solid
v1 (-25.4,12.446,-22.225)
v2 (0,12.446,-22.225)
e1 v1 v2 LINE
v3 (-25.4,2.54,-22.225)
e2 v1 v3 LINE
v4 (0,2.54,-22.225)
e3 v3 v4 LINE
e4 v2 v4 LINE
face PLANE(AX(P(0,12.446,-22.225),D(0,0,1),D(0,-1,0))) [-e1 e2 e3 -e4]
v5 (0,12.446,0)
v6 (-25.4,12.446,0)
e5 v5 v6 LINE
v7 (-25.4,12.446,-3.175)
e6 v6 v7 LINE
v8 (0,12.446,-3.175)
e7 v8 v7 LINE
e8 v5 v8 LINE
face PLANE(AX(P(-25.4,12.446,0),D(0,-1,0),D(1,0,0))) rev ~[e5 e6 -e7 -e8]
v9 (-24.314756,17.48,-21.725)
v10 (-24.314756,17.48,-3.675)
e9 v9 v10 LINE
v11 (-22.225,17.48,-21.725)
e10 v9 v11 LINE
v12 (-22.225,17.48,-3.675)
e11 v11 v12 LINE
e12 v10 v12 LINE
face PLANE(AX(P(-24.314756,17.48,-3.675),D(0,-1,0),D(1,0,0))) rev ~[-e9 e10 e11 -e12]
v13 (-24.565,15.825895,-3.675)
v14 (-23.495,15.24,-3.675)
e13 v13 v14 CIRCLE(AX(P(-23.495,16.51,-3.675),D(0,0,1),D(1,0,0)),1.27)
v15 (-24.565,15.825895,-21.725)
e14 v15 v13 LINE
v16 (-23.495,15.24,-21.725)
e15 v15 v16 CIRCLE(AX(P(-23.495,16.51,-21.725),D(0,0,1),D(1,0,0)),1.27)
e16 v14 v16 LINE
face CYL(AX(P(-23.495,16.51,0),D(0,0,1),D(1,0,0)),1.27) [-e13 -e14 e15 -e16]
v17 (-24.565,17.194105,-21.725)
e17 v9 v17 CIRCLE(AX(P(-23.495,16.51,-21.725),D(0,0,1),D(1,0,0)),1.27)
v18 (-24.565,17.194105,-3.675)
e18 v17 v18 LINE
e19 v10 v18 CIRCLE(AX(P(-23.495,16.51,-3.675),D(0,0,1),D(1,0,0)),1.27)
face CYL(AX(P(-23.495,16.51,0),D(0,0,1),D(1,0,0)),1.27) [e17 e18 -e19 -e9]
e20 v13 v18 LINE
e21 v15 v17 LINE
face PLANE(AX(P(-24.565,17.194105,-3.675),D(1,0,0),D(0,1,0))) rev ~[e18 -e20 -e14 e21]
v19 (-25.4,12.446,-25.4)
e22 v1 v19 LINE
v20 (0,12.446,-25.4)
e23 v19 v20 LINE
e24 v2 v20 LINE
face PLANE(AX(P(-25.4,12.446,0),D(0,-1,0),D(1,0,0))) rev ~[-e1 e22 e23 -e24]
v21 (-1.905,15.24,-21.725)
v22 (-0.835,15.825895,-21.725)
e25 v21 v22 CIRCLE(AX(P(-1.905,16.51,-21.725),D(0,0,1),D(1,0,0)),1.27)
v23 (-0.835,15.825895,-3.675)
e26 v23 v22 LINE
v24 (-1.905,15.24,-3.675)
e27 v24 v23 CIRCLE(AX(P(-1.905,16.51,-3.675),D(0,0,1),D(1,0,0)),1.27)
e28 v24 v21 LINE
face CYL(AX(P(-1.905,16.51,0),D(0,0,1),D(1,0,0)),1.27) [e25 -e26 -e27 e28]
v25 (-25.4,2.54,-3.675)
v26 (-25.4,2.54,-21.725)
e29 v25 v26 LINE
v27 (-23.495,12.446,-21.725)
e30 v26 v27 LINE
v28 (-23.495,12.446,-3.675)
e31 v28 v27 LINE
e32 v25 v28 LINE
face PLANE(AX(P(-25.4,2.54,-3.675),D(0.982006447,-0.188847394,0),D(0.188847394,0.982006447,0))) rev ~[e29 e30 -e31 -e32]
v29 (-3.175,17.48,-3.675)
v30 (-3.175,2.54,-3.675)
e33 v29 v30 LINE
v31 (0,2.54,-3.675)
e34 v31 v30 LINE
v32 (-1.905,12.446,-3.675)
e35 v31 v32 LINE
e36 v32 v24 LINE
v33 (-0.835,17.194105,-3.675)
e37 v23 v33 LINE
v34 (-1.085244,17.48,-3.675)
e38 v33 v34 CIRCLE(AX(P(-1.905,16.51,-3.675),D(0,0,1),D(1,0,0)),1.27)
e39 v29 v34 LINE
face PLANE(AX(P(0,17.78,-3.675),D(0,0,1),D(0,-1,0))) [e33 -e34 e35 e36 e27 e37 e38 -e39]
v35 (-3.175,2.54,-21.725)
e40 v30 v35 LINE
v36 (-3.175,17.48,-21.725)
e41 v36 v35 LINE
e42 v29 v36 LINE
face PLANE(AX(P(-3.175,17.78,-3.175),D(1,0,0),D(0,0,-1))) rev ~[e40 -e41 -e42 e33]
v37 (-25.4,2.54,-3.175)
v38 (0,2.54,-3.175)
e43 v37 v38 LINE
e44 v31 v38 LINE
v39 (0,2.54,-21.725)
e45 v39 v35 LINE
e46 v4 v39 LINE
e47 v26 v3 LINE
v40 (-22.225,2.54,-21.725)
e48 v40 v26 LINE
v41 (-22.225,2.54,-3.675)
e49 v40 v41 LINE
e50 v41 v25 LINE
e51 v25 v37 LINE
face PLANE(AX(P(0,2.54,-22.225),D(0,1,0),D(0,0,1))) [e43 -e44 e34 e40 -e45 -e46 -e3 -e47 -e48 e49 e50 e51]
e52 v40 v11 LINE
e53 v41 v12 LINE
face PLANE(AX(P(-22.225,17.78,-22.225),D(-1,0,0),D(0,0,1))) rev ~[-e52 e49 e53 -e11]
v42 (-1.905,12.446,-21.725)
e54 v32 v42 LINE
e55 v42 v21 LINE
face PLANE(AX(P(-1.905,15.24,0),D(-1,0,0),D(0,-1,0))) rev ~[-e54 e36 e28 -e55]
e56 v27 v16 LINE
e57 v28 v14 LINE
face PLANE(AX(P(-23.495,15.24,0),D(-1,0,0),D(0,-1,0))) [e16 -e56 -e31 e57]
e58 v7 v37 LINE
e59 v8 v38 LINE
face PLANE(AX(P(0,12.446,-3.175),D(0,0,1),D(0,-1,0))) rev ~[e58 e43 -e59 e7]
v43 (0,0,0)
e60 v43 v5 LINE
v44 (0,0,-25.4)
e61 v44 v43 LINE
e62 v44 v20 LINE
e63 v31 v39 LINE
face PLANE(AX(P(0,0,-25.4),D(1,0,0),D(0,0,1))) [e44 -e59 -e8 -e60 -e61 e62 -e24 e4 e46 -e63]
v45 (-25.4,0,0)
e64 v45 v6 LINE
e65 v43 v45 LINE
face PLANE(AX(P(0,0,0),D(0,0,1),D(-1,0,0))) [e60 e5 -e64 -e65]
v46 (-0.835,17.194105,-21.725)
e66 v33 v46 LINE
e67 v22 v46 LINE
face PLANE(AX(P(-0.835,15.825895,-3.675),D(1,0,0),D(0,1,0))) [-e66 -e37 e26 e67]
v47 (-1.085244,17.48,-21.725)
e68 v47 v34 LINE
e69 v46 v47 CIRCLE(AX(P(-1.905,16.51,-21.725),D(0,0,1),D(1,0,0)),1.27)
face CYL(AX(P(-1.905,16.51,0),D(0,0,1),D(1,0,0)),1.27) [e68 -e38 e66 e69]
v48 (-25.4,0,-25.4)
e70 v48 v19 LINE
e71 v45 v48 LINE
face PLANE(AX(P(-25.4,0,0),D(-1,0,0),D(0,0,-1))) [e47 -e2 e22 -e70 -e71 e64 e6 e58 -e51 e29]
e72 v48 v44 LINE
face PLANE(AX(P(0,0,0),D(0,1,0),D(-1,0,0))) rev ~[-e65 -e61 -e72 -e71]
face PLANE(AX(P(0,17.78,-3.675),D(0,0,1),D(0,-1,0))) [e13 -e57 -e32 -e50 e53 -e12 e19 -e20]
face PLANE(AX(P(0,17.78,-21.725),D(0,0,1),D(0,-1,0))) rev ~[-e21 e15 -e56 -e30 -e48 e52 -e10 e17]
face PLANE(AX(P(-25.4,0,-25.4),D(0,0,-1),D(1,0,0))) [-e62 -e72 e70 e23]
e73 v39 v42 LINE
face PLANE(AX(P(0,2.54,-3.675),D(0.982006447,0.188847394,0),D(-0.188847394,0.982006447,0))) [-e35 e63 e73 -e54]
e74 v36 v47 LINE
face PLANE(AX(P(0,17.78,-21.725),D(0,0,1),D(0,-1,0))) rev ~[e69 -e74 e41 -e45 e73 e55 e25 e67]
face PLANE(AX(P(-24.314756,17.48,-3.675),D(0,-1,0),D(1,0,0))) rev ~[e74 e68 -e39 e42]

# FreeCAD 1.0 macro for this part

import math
import FreeCAD as App
import Part
import Sketcher

V = App.Vector
Q = App.Units.Quantity


def add_polygon(sketch, points):
    """Adds a closed chain of lines whose ends are joined by coincident constraints."""
    first, n = sketch.GeometryCount, len(points)
    for a, b in zip(points, points[1:] + points[:1]):
        sketch.addGeometry(Part.LineSegment(App.Vector(*a, 0), App.Vector(*b, 0)), False)
    for i in range(n):
        sketch.addConstraint(Sketcher.Constraint("Coincident", first + i, 2, first + (i + 1) % n, 1))

doc = App.newDocument("Part")
body = doc.addObject("PartDesign::Body", "Body")

sketch1 = body.newObject("Sketcher::SketchObject", "Sketch")
sketch1.AttachmentSupport = (doc.getObject("XZ_Plane"), [""])
sketch1.MapMode = "FlatFace"
add_polygon(sketch1, [(-25.4, 0), (0, 0), (0, -25.4), (-25.4, -25.4)])
sketch1.addConstraint(Sketcher.Constraint("Horizontal", 0))
sketch1.addConstraint(Sketcher.Constraint("Vertical", 1))
sketch1.addConstraint(Sketcher.Constraint("Horizontal", 2))
sketch1.addConstraint(Sketcher.Constraint("Vertical", 3))
sketch1.addConstraint(Sketcher.Constraint("Coincident", 0, 2, -1, 1))
sketch1.addConstraint(Sketcher.Constraint("Equal", 2, 1))
sketch1.addConstraint(Sketcher.Constraint("DistanceX", 0, 1, 0, 2, Q("1 in")))
pad1 = body.newObject("PartDesign::Pad", "Pad")
pad1.Profile = sketch1
pad1.Length = Q("0.7 in")
pad1.Reversed = True

sketch2 = body.newObject("Sketcher::SketchObject", "Sketch001")
sketch2.AttachmentSupport = (doc.getObject("XZ_Plane"), [""])
sketch2.MapMode = "FlatFace"
sketch2.AttachmentOffset = App.Placement(V(0, 0, -0.7 * 25.4), App.Rotation())
add_polygon(sketch2, [(-22.225, -22.225), (-22.225, -3.175), (-3.175, -3.175), (-3.175, -22.225)])
sketch2.addConstraint(Sketcher.Constraint("Vertical", 0))
sketch2.addConstraint(Sketcher.Constraint("Horizontal", 1))
sketch2.addConstraint(Sketcher.Constraint("Vertical", 2))
sketch2.addConstraint(Sketcher.Constraint("Horizontal", 3))
sketch2.addConstraint(Sketcher.Constraint("Equal", 3, 0))
sketch2.addConstraint(Sketcher.Constraint("DistanceY", 0, 2, -1, 1, Q("0.125 in")))
sketch2.addConstraint(Sketcher.Constraint("DistanceX", 1, 2, -1, 1, Q("0.125 in")))
sketch2.addConstraint(Sketcher.Constraint("DistanceX", 1, 1, 1, 2, Q("0.75 in")))
pocket1 = body.newObject("PartDesign::Pocket", "Pocket")
pocket1.Profile = sketch2
pocket1.Length = Q("0.6 in")
pocket1.Reversed = True

sketch3 = body.newObject("Sketcher::SketchObject", "Sketch002")
sketch3.AttachmentSupport = (doc.getObject("XY_Plane"), [""])
sketch3.MapMode = "FlatFace"
sketch3.addGeometry(Part.ArcOfCircle(Part.Circle(V(-23.495, 16.51, 0), V(0, 0, 1), 1.27), math.radians(90), math.radians(270)), False)
sketch3.addGeometry(Part.LineSegment(V(-23.495, 17.78, 0), V(-25.4, 17.78, 0)), False)
sketch3.addGeometry(Part.LineSegment(V(-25.4, 17.78, 0), V(-25.4, 12.446, 0)), False)
sketch3.addGeometry(Part.LineSegment(V(-25.4, 12.446, 0), V(-23.495, 12.446, 0)), False)
sketch3.addGeometry(Part.LineSegment(V(-23.495, 12.446, 0), V(-23.495, 15.24, 0)), False)
sketch3.addGeometry(Part.LineSegment(V(0, 17.78, 0), V(-1.905, 17.78, 0)), False)
sketch3.addGeometry(Part.ArcOfCircle(Part.Circle(V(-1.905, 16.51, 0), V(0, 0, 1), 1.27), math.radians(-90), math.radians(90)), False)
sketch3.addGeometry(Part.LineSegment(V(-1.905, 15.24, 0), V(-1.905, 12.446, 0)), False)
sketch3.addGeometry(Part.LineSegment(V(-1.905, 12.446, 0), V(0, 12.446, 0)), False)
sketch3.addGeometry(Part.LineSegment(V(0, 12.446, 0), V(0, 17.78, 0)), False)
sketch3.addConstraint(Sketcher.Constraint("Tangent", 0, 1, 1, 1))
sketch3.addConstraint(Sketcher.Constraint("Coincident", 1, 2, 2, 1))
sketch3.addConstraint(Sketcher.Constraint("Coincident", 2, 2, 3, 1))
sketch3.addConstraint(Sketcher.Constraint("Coincident", 3, 2, 4, 1))
sketch3.addConstraint(Sketcher.Constraint("Coincident", 4, 2, 0, 2))
sketch3.addConstraint(Sketcher.Constraint("Tangent", 5, 2, 6, 2))
sketch3.addConstraint(Sketcher.Constraint("Coincident", 6, 1, 7, 1))
sketch3.addConstraint(Sketcher.Constraint("Coincident", 7, 2, 8, 1))
sketch3.addConstraint(Sketcher.Constraint("Coincident", 8, 2, 9, 1))
sketch3.addConstraint(Sketcher.Constraint("Coincident", 9, 2, 5, 1))
sketch3.addConstraint(Sketcher.Constraint("Horizontal", 1))
sketch3.addConstraint(Sketcher.Constraint("Vertical", 2))
sketch3.addConstraint(Sketcher.Constraint("Horizontal", 3))
sketch3.addConstraint(Sketcher.Constraint("Vertical", 4))
sketch3.addConstraint(Sketcher.Constraint("Horizontal", 5))
sketch3.addConstraint(Sketcher.Constraint("Vertical", 7))
sketch3.addConstraint(Sketcher.Constraint("Horizontal", 8))
sketch3.addConstraint(Sketcher.Constraint("Vertical", 9))
sketch3.addConstraint(Sketcher.Constraint("Equal", 0, 6))
sketch3.addConstraint(Sketcher.Constraint("PointOnObject", 8, 2, -2))
sketch3.addConstraint(Sketcher.Constraint("Horizontal", 0, 3, 6, 3))
sketch3.addConstraint(Sketcher.Constraint("Horizontal", 3, 2, 7, 2))
sketch3.addConstraint(Sketcher.Constraint("Vertical", 0, 1, 3, 2))
sketch3.addConstraint(Sketcher.Constraint("Vertical", 5, 2, 6, 1))
sketch3.addConstraint(Sketcher.Constraint("Equal", 3, 5))
sketch3.addConstraint(Sketcher.Constraint("Radius", 0, Q("0.05 in")))
sketch3.addConstraint(Sketcher.Constraint("DistanceY", 2, 2, 2, 1, Q("0.21 in")))
sketch3.addConstraint(Sketcher.Constraint("DistanceX", 1, 2, -1, 1, Q("1 in")))
sketch3.addConstraint(Sketcher.Constraint("DistanceY", -1, 1, 0, 1, Q("0.7 in")))
sketch3.addConstraint(Sketcher.Constraint("DistanceX", 1, 2, 1, 1, Q("0.075 in")))
pocket2 = body.newObject("PartDesign::Pocket", "Pocket001")
pocket2.Profile = sketch3
pocket2.Length = Q("1 in")

sketch4 = body.newObject("Sketcher::SketchObject", "Sketch003")
sketch4.AttachmentSupport = (doc.getObject("YZ_Plane"), [""])
sketch4.MapMode = "FlatFace"
add_polygon(sketch4, [(17.78, -3.675), (17.78, 0), (12.446, 0), (12.446, -3.175), (2.54, -3.175), (2.54, -3.675)])
add_polygon(sketch4, [(17.78, -21.725), (2.54, -21.725), (2.54, -22.225), (12.446, -22.225), (12.446, -25.4), (17.78, -25.4)])
sketch4.addConstraint(Sketcher.Constraint("Vertical", 0))
sketch4.addConstraint(Sketcher.Constraint("Horizontal", 1))
sketch4.addConstraint(Sketcher.Constraint("Vertical", 2))
sketch4.addConstraint(Sketcher.Constraint("Horizontal", 3))
sketch4.addConstraint(Sketcher.Constraint("Vertical", 4))
sketch4.addConstraint(Sketcher.Constraint("Horizontal", 5))
sketch4.addConstraint(Sketcher.Constraint("Horizontal", 6))
sketch4.addConstraint(Sketcher.Constraint("Vertical", 7))
sketch4.addConstraint(Sketcher.Constraint("Horizontal", 8))
sketch4.addConstraint(Sketcher.Constraint("Vertical", 9))
sketch4.addConstraint(Sketcher.Constraint("Horizontal", 10))
sketch4.addConstraint(Sketcher.Constraint("Vertical", 11))
sketch4.addConstraint(Sketcher.Constraint("PointOnObject", 0, 2, -1))
sketch4.addConstraint(Sketcher.Constraint("Vertical", 4, 2, 6, 2))
sketch4.addConstraint(Sketcher.Constraint("Vertical", 2, 2, 8, 2))
sketch4.addConstraint(Sketcher.Constraint("Vertical", 5, 2, 10, 2))
sketch4.addConstraint(Sketcher.Constraint("Equal", 4, 7))
sketch4.addConstraint(Sketcher.Constraint("Equal", 2, 9))
sketch4.addConstraint(Sketcher.Constraint("DistanceX", 5, 1, 5, 2, Q("0.6 in")))
sketch4.addConstraint(Sketcher.Constraint("DistanceY", 9, 2, -1, 1, Q("1 in")))
sketch4.addConstraint(Sketcher.Constraint("DistanceX", 1, 2, 1, 1, Q("0.21 in")))
sketch4.addConstraint(Sketcher.Constraint("DistanceY", 0, 1, 0, 2, Q("3.675 mm")))
sketch4.addConstraint(Sketcher.Constraint("DistanceX", -1, 1, 0, 2, Q("0.7 in")))
sketch4.addConstraint(Sketcher.Constraint("DistanceY", 2, 2, 2, 1, Q("0.125 in")))
pocket3 = body.newObject("PartDesign::Pocket", "Pocket002")
pocket3.Profile = sketch4
pocket3.Length = Q("1 in")

sketch5 = body.newObject("Sketcher::SketchObject", "Sketch004")
sketch5.AttachmentSupport = (doc.getObject("XY_Plane"), [""])
sketch5.MapMode = "FlatFace"
sketch5.AttachmentOffset = App.Placement(V(0, 0, -3.675), App.Rotation())
add_polygon(sketch5, [(0, 12.446), (-1.905, 12.446), (0, 2.54)])
add_polygon(sketch5, [(-25.4, 2.54), (-23.495, 12.446), (-25.4, 12.446)])
sketch5.addConstraint(Sketcher.Constraint("Horizontal", 0))
sketch5.addConstraint(Sketcher.Constraint("Vertical", 2))
sketch5.addConstraint(Sketcher.Constraint("Horizontal", 4))
sketch5.addConstraint(Sketcher.Constraint("Vertical", 5))
sketch5.addConstraint(Sketcher.Constraint("PointOnObject", 1, 2, -2))
sketch5.addConstraint(Sketcher.Constraint("Horizontal", 2, 2, 3, 2))
sketch5.addConstraint(Sketcher.Constraint("Horizontal", 1, 2, 5, 2))
sketch5.addConstraint(Sketcher.Constraint("Equal", 0, 4))
sketch5.addConstraint(Sketcher.Constraint("DistanceX", 4, 2, -1, 1, Q("1 in")))
sketch5.addConstraint(Sketcher.Constraint("DistanceY", 2, 1, 2, 2, Q("0.39 in")))
sketch5.addConstraint(Sketcher.Constraint("DistanceY", -1, 1, 1, 2, Q("0.1 in")))
sketch5.addConstraint(Sketcher.Constraint("DistanceX", 0, 2, 0, 1, Q("0.075 in")))
pocket4 = body.newObject("PartDesign::Pocket", "Pocket003")
pocket4.Profile = sketch5
pocket4.Length = 18.5

sketch6 = body.newObject("Sketcher::SketchObject", "Sketch005")
sketch6.AttachmentSupport = (doc.getObject("XY_Plane"), [""])
sketch6.MapMode = "FlatFace"
sketch6.AttachmentOffset = App.Placement(V(0, 0, -3.675), App.Rotation())
add_polygon(sketch6, [(-24.765, 17.78), (-24.765, 15.51), (-24.565, 15.51), (-24.565, 17.48), (-0.635, 17.48), (-0.635, 17.78)])
sketch6.addGeometry(Part.ArcOfCircle(Part.Circle(V(-1.905, 16.51, 0), V(0, 0, 1), 1.27), math.radians(-32.592844), math.radians(32.592844)), False)
sketch6.addGeometry(Part.LineSegment(V(-0.835, 17.194105, 0), V(-0.835, 15.825895, 0)), False)
sketch6.addConstraint(Sketcher.Constraint("Coincident", 6, 1, 7, 2))
sketch6.addConstraint(Sketcher.Constraint("Coincident", 7, 1, 6, 2))
sketch6.addConstraint(Sketcher.Constraint("Vertical", 0))
sketch6.addConstraint(Sketcher.Constraint("Horizontal", 1))
sketch6.addConstraint(Sketcher.Constraint("Vertical", 2))
sketch6.addConstraint(Sketcher.Constraint("Horizontal", 3))
sketch6.addConstraint(Sketcher.Constraint("Vertical", 4))
sketch6.addConstraint(Sketcher.Constraint("Horizontal", 5))
sketch6.addConstraint(Sketcher.Constraint("Vertical", 7))
sketch6.addConstraint(Sketcher.Constraint("Radius", 6, Q("0.05 in")))
sketch6.addConstraint(Sketcher.Constraint("DistanceY", 4, 1, 4, 2, Q("0.0118 in")))
sketch6.addConstraint(Sketcher.Constraint("DistanceX", 1, 1, 1, 2, Q("0.2 mm")))
sketch6.addConstraint(Sketcher.Constraint("DistanceX", 5, 2, 5, 1, Q("0.95 in")))
sketch6.addConstraint(Sketcher.Constraint("DistanceY", -1, 1, 4, 2, Q("0.7 in")))
sketch6.addConstraint(Sketcher.Constraint("DistanceX", 0, 2, 6, 3, Q("0.9 in")))
sketch6.addConstraint(Sketcher.Constraint("DistanceY", -1, 1, 6, 3, Q("0.65 in")))
sketch6.addConstraint(Sketcher.Constraint("DistanceY", 0, 2, 6, 3, Q("1 mm")))
sketch6.addConstraint(Sketcher.Constraint("DistanceX", 6, 1, 3, 2, Q("0.2 mm")))
sketch6.addConstraint(Sketcher.Constraint("DistanceX", 6, 3, -1, 1, Q("0.075 in")))
pocket5 = body.newObject("PartDesign::Pocket", "Pocket004")
pocket5.Profile = sketch6
pocket5.Length = 18.5

doc.recompute()
